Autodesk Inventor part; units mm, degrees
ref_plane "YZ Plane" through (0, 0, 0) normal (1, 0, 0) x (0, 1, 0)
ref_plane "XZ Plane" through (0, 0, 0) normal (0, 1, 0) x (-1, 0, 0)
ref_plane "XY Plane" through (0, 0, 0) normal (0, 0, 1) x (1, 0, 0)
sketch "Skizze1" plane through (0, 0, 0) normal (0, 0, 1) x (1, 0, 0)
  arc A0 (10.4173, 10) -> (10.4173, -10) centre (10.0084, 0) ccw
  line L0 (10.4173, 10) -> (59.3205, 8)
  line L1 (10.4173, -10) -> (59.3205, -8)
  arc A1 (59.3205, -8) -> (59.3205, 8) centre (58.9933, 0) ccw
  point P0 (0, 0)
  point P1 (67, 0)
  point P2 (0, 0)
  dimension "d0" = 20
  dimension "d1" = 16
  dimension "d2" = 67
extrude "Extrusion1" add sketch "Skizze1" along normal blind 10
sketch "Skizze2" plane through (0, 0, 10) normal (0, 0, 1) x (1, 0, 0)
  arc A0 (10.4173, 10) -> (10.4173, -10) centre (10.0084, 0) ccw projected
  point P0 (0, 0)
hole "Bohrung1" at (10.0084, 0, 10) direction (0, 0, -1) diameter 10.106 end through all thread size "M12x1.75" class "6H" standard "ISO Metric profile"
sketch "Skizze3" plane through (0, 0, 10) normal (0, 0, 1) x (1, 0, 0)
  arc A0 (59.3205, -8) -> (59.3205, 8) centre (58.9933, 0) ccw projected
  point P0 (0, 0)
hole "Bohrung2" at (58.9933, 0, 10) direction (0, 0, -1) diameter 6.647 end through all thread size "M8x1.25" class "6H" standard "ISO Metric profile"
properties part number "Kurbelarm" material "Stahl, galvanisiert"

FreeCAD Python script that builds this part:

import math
import FreeCAD as App
import Part
import Sketcher
from FreeCAD import Vector

doc = App.newDocument("Part")
body = doc.addObject("PartDesign::Body", "Body")

sketch1 = body.newObject("Sketcher::SketchObject", "Sketch")
sketch1.AttachmentSupport = (doc.getObject("XY_Plane"), [""])
sketch1.MapMode = "FlatFace"
sketch1.addGeometry([
    Part.LineSegment(Vector(59, 8, 0), Vector(10, 10, 0)),
    Part.ArcOfCircle(Part.Circle(Vector(10, 0, 0), Vector(0, 0, 1), 10), math.radians(88), math.radians(272)),
    Part.LineSegment(Vector(10, -10, 0), Vector(59, -8, 0)),
    Part.ArcOfCircle(Part.Circle(Vector(59, 0, 0), Vector(0, 0, 1), 8), math.radians(-88), math.radians(88)),
], False)
sketch1.addConstraint([
    Sketcher.Constraint("Tangent", 0, 2, 1, 1),
    Sketcher.Constraint("Tangent", 1, 2, 2, 1),
    Sketcher.Constraint("Tangent", 2, 2, 3, 1),
    Sketcher.Constraint("Tangent", 3, 2, 0, 1),
    Sketcher.Constraint("Symmetric", 0, 2, 1, 2, -1),
    Sketcher.Constraint("DistanceY", 1, 2, 0, 2, 20.0),
    Sketcher.Constraint("DistanceY", 2, 2, 3, 2, 16.0),
    Sketcher.Constraint("Distance", 0, 48.944),
    Sketcher.Constraint("DistanceX", -1, 1, 1, 3, 10.0084),
])
pad1 = body.newObject("PartDesign::Pad", "Pad")
pad1.Profile = sketch1
pad1.Length = 10

sketch2 = body.newObject("Sketcher::SketchObject", "Sketch001")
sketch2.AttachmentSupport = (doc.getObject("XY_Plane"), [""])
sketch2.MapMode = "FlatFace"
sketch2.AttachmentOffset = App.Placement(Vector(0, 0, 10), App.Rotation())
sketch2.addGeometry(Part.Circle(Vector(10, 0, 0), Vector(0, 0, 1), 5), False)
sketch2.addConstraint([
    Sketcher.Constraint("PointOnObject", 0, 3, -1),
    Sketcher.Constraint("Diameter", 0, 10.106),
    Sketcher.Constraint("DistanceX", -1, 1, 0, 3, 10.0084),
])
doc.recompute()
hole = body.newObject("PartDesign::Hole", "Hole")
hole.Profile = sketch2
hole.ThreadType = "None"
hole.Diameter = 10.106
hole.DepthType = "ThroughAll"

sketch3 = body.newObject("Sketcher::SketchObject", "Sketch002")
sketch3.AttachmentSupport = (doc.getObject("XY_Plane"), [""])
sketch3.MapMode = "FlatFace"
sketch3.AttachmentOffset = App.Placement(Vector(0, 0, 10), App.Rotation())
sketch3.addGeometry(Part.Circle(Vector(59, 0, 0), Vector(0, 0, 1), 3.3), False)
sketch3.addConstraint([
    Sketcher.Constraint("PointOnObject", 0, 3, -1),
    Sketcher.Constraint("Diameter", 0, 6.647),
    Sketcher.Constraint("DistanceX", -1, 1, 0, 3, 58.9933),
])
doc.recompute()
hole2 = body.newObject("PartDesign::Hole", "Hole001")
hole2.Profile = sketch3
hole2.ThreadType = "None"
hole2.Diameter = 6.647
hole2.DepthType = "ThroughAll"

doc.recompute()
